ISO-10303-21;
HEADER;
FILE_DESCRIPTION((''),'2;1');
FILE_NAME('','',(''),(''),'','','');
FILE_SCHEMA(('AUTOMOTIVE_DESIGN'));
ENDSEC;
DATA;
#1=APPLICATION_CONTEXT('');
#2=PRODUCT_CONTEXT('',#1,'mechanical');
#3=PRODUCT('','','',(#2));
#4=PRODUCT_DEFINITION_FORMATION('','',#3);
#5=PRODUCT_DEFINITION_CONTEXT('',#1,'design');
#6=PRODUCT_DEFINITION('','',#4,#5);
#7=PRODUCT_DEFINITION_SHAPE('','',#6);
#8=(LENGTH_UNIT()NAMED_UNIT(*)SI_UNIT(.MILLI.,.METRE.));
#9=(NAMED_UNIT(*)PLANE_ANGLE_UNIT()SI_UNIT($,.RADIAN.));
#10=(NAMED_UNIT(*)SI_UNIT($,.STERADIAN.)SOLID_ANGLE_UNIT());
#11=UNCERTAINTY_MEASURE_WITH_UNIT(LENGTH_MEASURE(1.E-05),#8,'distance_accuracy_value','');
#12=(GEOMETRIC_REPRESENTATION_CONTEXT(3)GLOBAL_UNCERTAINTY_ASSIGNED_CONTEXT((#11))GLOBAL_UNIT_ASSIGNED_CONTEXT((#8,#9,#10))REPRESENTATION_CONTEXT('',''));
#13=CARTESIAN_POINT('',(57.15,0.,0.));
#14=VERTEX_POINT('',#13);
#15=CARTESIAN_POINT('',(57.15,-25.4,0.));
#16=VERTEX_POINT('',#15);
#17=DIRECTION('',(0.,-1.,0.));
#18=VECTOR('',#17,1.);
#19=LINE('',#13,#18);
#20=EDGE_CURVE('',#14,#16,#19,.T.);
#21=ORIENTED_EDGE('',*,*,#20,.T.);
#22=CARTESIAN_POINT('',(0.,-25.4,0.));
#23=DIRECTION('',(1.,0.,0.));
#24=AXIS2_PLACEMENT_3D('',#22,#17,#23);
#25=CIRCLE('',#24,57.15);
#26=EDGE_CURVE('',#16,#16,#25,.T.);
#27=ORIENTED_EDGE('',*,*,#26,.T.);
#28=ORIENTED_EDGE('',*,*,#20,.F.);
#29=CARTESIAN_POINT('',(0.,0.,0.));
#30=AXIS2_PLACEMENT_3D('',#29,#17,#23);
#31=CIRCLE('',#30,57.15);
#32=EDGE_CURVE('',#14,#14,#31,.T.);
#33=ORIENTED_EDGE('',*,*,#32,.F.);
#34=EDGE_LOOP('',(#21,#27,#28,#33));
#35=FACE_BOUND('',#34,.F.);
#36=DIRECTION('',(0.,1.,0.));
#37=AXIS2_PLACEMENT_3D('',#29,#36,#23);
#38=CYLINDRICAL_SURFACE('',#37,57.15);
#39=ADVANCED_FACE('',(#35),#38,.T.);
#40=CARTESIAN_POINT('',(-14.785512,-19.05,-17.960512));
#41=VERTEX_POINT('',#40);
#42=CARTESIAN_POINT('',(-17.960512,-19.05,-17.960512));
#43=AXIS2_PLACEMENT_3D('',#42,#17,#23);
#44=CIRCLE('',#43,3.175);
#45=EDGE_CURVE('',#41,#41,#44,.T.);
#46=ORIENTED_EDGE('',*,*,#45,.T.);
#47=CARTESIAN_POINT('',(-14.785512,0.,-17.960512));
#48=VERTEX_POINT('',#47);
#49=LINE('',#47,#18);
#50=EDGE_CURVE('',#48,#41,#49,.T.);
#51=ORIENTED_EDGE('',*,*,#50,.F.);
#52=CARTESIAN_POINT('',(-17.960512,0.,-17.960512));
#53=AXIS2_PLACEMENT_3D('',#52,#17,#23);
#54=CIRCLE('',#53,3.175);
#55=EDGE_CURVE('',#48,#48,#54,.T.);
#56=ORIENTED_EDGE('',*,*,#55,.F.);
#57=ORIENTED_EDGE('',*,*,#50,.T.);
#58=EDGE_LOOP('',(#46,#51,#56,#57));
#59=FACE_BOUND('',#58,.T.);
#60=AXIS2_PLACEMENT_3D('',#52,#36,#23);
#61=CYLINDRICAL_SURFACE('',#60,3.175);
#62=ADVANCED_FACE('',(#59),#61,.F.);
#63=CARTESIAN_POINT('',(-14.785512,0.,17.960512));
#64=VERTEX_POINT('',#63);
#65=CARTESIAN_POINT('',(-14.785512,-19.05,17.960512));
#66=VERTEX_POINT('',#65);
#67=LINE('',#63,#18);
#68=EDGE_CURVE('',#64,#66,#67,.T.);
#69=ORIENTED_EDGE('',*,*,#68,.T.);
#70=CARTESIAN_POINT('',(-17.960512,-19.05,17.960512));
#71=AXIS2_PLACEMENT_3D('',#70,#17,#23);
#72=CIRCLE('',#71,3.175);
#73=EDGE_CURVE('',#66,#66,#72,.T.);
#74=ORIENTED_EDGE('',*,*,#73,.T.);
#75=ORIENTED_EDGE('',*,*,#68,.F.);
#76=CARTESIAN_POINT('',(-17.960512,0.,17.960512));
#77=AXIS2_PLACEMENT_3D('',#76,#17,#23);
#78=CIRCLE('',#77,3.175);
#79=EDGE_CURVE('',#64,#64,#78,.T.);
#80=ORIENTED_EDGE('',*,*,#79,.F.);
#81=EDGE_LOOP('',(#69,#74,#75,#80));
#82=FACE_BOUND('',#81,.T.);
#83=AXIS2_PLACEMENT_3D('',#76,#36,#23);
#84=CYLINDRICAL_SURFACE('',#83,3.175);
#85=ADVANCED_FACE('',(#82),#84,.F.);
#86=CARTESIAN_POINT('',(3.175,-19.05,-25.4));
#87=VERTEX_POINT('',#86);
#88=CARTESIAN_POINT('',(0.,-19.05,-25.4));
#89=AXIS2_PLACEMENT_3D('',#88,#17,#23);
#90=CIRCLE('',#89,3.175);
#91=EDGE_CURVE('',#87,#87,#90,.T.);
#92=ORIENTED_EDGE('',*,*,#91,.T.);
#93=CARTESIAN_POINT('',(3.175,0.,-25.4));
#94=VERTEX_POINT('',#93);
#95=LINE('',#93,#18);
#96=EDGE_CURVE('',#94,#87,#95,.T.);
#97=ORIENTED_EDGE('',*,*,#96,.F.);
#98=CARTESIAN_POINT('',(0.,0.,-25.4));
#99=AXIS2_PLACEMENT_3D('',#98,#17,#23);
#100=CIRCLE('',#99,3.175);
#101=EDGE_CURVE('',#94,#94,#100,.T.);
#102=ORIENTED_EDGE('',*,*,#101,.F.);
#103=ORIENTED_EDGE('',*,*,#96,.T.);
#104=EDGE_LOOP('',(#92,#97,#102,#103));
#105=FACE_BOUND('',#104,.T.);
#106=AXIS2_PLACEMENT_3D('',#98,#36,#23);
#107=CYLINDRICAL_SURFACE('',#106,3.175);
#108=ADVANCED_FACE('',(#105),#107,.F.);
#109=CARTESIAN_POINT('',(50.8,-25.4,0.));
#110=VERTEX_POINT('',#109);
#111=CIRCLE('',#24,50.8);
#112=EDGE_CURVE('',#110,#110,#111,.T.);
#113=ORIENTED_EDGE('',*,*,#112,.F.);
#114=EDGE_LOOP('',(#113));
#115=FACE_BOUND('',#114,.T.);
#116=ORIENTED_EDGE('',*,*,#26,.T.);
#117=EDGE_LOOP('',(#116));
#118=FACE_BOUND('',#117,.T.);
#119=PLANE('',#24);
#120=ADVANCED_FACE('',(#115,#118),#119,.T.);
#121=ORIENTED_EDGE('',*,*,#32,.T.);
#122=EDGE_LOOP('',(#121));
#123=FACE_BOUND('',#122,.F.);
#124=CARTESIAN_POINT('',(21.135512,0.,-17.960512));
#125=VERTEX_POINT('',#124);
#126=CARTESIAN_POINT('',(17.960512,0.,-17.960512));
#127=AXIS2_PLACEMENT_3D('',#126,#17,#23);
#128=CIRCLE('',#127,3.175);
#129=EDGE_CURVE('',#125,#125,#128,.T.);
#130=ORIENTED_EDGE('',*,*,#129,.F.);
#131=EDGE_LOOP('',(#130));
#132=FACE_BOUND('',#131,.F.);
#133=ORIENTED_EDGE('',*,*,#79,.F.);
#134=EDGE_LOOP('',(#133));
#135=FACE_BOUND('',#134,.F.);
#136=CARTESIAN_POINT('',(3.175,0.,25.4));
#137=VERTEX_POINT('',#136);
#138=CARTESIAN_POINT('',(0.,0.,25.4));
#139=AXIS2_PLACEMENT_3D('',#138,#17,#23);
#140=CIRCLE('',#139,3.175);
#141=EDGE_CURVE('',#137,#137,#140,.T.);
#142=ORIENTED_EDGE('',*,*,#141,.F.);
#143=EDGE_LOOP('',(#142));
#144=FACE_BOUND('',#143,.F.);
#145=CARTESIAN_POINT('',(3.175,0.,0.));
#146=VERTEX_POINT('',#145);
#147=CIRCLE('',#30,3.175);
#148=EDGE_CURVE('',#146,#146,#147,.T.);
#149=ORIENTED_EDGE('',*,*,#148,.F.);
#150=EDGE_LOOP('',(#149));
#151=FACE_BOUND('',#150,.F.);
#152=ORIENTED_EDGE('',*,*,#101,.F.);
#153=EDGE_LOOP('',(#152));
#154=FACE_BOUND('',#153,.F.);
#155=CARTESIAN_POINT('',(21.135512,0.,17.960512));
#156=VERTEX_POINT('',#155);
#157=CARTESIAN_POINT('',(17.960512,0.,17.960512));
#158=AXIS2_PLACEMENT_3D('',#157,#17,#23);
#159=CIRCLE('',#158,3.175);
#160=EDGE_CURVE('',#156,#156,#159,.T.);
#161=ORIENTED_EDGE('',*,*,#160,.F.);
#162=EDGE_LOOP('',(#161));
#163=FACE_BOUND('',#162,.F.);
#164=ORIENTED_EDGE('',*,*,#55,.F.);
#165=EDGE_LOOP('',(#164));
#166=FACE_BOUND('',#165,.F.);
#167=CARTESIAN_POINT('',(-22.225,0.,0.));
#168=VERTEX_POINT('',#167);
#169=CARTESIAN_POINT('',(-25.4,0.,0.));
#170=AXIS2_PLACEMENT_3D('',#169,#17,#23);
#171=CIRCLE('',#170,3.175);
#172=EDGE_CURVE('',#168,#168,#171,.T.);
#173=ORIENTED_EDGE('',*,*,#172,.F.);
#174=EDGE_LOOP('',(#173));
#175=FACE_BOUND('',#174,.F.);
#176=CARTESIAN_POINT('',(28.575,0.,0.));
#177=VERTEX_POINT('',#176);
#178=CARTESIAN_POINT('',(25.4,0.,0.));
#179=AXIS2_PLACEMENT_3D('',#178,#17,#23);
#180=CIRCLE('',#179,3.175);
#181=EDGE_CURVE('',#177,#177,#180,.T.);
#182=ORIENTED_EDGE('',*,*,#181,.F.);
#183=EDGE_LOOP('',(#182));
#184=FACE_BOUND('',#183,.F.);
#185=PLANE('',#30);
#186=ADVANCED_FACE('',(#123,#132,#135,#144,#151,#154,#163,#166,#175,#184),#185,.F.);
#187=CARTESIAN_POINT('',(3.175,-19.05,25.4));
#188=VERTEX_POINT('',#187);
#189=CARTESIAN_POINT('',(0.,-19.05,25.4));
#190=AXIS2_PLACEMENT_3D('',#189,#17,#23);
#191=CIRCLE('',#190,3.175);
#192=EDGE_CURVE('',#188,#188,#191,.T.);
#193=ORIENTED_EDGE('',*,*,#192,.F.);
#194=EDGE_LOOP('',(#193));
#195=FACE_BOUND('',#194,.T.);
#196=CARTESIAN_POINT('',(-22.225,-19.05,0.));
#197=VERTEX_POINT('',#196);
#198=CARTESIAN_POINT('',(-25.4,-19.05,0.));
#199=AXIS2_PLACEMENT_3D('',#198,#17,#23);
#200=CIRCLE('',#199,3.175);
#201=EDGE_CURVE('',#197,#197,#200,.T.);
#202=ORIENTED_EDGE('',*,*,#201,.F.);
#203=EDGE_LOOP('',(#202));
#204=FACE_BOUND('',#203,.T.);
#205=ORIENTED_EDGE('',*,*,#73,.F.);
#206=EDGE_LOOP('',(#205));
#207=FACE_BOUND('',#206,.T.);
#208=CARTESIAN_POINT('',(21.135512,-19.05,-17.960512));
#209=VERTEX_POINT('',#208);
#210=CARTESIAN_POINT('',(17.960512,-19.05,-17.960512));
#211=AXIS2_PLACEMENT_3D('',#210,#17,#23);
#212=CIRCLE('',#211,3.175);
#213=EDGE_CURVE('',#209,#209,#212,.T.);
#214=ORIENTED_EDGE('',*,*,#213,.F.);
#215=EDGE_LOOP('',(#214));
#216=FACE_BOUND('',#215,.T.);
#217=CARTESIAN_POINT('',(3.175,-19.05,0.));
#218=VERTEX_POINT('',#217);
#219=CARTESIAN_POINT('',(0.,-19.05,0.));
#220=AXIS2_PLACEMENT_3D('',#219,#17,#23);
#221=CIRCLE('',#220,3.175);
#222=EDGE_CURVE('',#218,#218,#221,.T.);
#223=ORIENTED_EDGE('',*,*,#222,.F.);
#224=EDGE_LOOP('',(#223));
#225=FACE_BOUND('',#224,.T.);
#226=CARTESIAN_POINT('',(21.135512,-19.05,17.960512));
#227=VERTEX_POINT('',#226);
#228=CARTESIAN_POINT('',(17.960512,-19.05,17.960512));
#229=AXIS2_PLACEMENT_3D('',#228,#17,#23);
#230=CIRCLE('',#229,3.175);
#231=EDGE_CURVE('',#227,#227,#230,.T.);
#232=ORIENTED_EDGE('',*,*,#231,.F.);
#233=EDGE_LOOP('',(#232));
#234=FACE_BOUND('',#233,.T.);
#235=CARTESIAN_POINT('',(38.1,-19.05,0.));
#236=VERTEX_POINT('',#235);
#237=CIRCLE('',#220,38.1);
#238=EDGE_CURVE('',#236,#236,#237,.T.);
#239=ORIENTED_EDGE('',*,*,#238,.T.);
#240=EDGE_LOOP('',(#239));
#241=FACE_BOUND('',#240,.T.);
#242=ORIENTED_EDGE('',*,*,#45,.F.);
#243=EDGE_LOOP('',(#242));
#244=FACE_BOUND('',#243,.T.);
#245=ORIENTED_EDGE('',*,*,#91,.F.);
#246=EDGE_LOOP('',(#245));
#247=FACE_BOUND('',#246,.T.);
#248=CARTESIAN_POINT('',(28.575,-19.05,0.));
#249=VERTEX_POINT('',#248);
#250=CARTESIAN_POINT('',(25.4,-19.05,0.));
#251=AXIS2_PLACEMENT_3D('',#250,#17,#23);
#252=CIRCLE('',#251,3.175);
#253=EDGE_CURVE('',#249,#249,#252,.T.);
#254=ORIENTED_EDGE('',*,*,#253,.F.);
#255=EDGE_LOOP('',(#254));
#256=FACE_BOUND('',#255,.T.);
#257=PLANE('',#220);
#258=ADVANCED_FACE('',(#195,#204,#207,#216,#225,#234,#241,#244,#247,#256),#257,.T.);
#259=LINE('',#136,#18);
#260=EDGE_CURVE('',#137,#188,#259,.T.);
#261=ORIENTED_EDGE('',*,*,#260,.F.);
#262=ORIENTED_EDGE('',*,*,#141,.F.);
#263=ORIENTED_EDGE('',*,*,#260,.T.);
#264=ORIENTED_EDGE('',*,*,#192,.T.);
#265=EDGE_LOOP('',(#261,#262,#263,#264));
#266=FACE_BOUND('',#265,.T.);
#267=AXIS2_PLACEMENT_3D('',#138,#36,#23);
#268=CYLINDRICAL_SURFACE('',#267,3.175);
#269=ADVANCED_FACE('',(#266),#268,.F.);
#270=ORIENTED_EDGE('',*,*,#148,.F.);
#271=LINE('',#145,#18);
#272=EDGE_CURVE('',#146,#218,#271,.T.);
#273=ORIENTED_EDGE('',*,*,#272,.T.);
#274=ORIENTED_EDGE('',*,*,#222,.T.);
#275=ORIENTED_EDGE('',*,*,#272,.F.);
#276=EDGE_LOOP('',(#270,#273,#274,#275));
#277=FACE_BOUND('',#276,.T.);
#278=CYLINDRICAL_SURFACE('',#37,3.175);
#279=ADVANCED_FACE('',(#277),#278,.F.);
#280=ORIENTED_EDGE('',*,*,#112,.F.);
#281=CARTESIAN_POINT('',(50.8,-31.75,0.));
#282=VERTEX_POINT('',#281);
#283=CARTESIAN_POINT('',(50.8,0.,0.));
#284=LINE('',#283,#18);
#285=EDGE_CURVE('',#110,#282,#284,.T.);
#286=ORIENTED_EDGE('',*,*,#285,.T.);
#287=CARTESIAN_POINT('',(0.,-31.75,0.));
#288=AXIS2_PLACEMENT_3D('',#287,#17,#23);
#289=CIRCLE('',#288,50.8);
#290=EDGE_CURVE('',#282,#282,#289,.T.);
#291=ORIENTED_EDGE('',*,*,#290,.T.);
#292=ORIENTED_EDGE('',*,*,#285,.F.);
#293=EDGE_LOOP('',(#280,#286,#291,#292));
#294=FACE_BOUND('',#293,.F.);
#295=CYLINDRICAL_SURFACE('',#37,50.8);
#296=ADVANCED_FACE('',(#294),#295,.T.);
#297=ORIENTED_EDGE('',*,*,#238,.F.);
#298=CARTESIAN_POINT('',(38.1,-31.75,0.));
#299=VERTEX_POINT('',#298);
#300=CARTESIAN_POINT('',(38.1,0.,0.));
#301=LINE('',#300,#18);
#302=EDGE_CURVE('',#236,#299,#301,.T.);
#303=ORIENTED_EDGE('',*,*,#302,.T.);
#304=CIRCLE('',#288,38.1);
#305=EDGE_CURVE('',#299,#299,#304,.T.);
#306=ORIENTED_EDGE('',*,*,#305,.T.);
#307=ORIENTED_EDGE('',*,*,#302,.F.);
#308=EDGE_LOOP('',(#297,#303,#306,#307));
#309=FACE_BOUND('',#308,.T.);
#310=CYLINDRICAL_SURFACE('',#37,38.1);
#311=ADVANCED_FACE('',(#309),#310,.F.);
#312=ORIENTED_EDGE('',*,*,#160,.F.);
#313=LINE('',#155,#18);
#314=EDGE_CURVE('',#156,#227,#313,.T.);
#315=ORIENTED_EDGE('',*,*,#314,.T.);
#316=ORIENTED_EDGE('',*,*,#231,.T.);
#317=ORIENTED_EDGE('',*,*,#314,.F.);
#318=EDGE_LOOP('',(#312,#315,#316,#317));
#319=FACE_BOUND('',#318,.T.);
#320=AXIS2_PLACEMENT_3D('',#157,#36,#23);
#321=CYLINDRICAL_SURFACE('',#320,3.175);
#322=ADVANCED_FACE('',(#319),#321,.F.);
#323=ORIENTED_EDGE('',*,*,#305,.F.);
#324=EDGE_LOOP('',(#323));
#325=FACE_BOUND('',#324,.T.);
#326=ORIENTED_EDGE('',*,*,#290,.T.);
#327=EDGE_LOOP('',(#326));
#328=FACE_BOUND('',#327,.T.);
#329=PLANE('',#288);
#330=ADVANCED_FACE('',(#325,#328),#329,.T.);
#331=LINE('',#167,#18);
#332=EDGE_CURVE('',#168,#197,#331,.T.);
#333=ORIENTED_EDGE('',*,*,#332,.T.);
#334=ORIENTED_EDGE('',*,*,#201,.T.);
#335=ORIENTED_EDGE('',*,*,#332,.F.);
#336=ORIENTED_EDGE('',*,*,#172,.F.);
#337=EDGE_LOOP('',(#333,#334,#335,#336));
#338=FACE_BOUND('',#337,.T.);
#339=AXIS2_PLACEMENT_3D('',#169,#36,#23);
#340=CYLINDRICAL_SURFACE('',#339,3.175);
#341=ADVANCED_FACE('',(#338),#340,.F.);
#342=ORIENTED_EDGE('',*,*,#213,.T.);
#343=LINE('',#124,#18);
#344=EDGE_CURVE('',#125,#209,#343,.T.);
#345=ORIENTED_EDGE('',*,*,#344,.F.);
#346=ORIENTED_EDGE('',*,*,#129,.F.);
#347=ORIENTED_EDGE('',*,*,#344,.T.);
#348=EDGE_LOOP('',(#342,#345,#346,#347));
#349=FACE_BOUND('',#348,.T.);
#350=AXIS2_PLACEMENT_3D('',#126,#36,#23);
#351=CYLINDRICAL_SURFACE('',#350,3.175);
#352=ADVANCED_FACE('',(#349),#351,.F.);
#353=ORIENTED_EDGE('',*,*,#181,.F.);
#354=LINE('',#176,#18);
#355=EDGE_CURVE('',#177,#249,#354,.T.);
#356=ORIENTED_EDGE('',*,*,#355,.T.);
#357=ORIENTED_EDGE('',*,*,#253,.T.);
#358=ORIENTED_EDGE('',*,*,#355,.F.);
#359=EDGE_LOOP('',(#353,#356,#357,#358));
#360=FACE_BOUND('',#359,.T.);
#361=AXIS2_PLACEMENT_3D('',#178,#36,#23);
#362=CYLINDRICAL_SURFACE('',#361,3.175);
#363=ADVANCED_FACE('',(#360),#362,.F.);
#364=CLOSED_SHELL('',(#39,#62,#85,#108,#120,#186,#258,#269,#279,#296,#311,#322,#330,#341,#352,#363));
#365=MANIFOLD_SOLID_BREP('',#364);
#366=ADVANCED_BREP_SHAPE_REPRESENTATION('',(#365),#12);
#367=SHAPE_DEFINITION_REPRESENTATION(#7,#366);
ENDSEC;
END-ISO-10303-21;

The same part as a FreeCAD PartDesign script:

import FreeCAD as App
import Part
import Sketcher
from FreeCAD import Vector
Q = App.Units.Quantity

doc = App.newDocument("Part")
params = doc.addObject("Spreadsheet::Sheet", "Params")
for row, (alias, value) in enumerate([
    ("sketch1_diameter", "4 in"),
    ("sketch1_diameter2", "4.5 in"),
    ("pad1_length", "1 in"),
    ("sketch2_diameter", "4 in"),
    ("sketch2_diameter2", "3 in"),
    ("pad2_length", "1.25 in"),
    ("sketch3_diameter", "3 in"),
    ("sketch3_diameter2", "0.25 in"),
    ("pad3_length", "0.75 in"),
], start=1):
    params.set(f"A{row}", alias)
    params.set(f"B{row}", "=" + value)
    params.setAlias(f"B{row}", alias)

body = doc.addObject("PartDesign::Body", "Body")

sketch1 = body.newObject("Sketcher::SketchObject", "Sketch")
sketch1.AttachmentSupport = (doc.getObject("XZ_Plane"), [""])
sketch1.MapMode = "FlatFace"
sketch1.addGeometry(Part.Circle(Vector(0, 0, 0), Vector(0, 0, 1), 57.15), False)
sketch1.addGeometry(Part.Circle(Vector(0, 0, 0), Vector(0, 0, 1), 50.8), False)
sketch1.addConstraint(Sketcher.Constraint("Coincident", 0, 3, -1, 1))
sketch1.addConstraint(Sketcher.Constraint("Coincident", 1, 3, -1, 1))
sketch1.addConstraint(Sketcher.Constraint("Diameter", 1, Q("4 in")))
sketch1.addConstraint(Sketcher.Constraint("Diameter", 0, Q("4.5 in")))
sketch1.setExpression("Constraints[2]", "Params.sketch1_diameter")
sketch1.setExpression("Constraints[3]", "Params.sketch1_diameter2")
pad1 = body.newObject("PartDesign::Pad", "Pad")
pad1.Profile = sketch1
pad1.setExpression("Length", "Params.pad1_length")

sketch2 = body.newObject("Sketcher::SketchObject", "Sketch001")
sketch2.AttachmentSupport = (doc.getObject("XZ_Plane"), [""])
sketch2.MapMode = "FlatFace"
sketch2.addGeometry(Part.Circle(Vector(0, 0, 0), Vector(0, 0, 1), 50.8), False)
sketch2.addGeometry(Part.Circle(Vector(0, 0, 0), Vector(0, 0, 1), 38.1), False)
sketch2.addConstraint(Sketcher.Constraint("Coincident", 0, 3, -1, 1))
sketch2.addConstraint(Sketcher.Constraint("Coincident", 1, 3, -1, 1))
sketch2.addConstraint(Sketcher.Constraint("Diameter", 0, Q("4 in")))
sketch2.addConstraint(Sketcher.Constraint("Diameter", 1, Q("3 in")))
sketch2.setExpression("Constraints[2]", "Params.sketch2_diameter")
sketch2.setExpression("Constraints[3]", "Params.sketch2_diameter2")
pad2 = body.newObject("PartDesign::Pad", "Pad001")
pad2.Profile = sketch2
pad2.setExpression("Length", "Params.pad2_length")

sketch3 = body.newObject("Sketcher::SketchObject", "Sketch002")
sketch3.AttachmentSupport = (doc.getObject("XZ_Plane"), [""])
sketch3.MapMode = "FlatFace"
sketch3.addGeometry(Part.Circle(Vector(0, 0, 0), Vector(0, 0, 1), 38.1), False)
sketch3.addGeometry(Part.Circle(Vector(-17.960512, -17.960512, 0), Vector(0, 0, 1), 3.175), False)
sketch3.addGeometry(Part.Circle(Vector(0, -25.4, 0), Vector(0, 0, 1), 3.175), False)
sketch3.addGeometry(Part.Circle(Vector(17.960512, -17.960512, 0), Vector(0, 0, 1), 3.175), False)
sketch3.addGeometry(Part.Circle(Vector(-25.4, 0, 0), Vector(0, 0, 1), 3.175), False)
sketch3.addGeometry(Part.Circle(Vector(-17.960512, 17.960512, 0), Vector(0, 0, 1), 3.175), False)
sketch3.addGeometry(Part.Circle(Vector(0, 0, 0), Vector(0, 0, 1), 3.175), False)
sketch3.addGeometry(Part.Circle(Vector(25.4, 0, 0), Vector(0, 0, 1), 3.175), False)
sketch3.addGeometry(Part.Circle(Vector(0, 25.4, 0), Vector(0, 0, 1), 3.175), False)
sketch3.addGeometry(Part.Circle(Vector(17.960512, 17.960512, 0), Vector(0, 0, 1), 3.175), False)
sketch3.addConstraint(Sketcher.Constraint("Coincident", 0, 3, -1, 1))
sketch3.addConstraint(Sketcher.Constraint("Coincident", 6, 3, -1, 1))
sketch3.addConstraint(Sketcher.Constraint("Equal", 1, 2))
sketch3.addConstraint(Sketcher.Constraint("Equal", 2, 3))
sketch3.addConstraint(Sketcher.Constraint("Equal", 3, 4))
sketch3.addConstraint(Sketcher.Constraint("Equal", 4, 5))
sketch3.addConstraint(Sketcher.Constraint("Equal", 5, 6))
sketch3.addConstraint(Sketcher.Constraint("Equal", 6, 7))
sketch3.addConstraint(Sketcher.Constraint("Equal", 7, 8))
sketch3.addConstraint(Sketcher.Constraint("Equal", 8, 9))
sketch3.addConstraint(Sketcher.Constraint("Symmetric", 3, 3, 5, 3, -1, 1))
sketch3.addConstraint(Sketcher.Constraint("Symmetric", 4, 3, 7, 3, -1, 1))
sketch3.addConstraint(Sketcher.Constraint("Symmetric", 2, 3, 8, 3, -1, 1))
sketch3.addConstraint(Sketcher.Constraint("Symmetric", 1, 3, 9, 3, -1, 1))
sketch3.addConstraint(Sketcher.Constraint("Symmetric", 1, 3, 3, 3, -2))
sketch3.addConstraint(Sketcher.Constraint("PointOnObject", 2, 3, -2))
sketch3.addConstraint(Sketcher.Constraint("PointOnObject", 4, 3, -1))
sketch3.addConstraint(Sketcher.Constraint("Diameter", 0, Q("3 in")))
sketch3.addConstraint(Sketcher.Constraint("Diameter", 1, Q("0.25 in")))
sketch3.addConstraint(Sketcher.Constraint("DistanceY", 2, 3, -1, 1, Q("1 in")))
sketch3.addConstraint(Sketcher.Constraint("DistanceX", 4, 3, -1, 1, Q("1 in")))
sketch3.addConstraint(Sketcher.Constraint("DistanceX", 1, 3, -1, 1, Q("17.960512 mm")))
sketch3.addConstraint(Sketcher.Constraint("DistanceY", 1, 3, -1, 1, Q("17.960512 mm")))
sketch3.setExpression("Constraints[17]", "Params.sketch3_diameter")
sketch3.setExpression("Constraints[18]", "Params.sketch3_diameter2")
pad3 = body.newObject("PartDesign::Pad", "Pad002")
pad3.Profile = sketch3
pad3.setExpression("Length", "Params.pad3_length")

doc.recompute()
